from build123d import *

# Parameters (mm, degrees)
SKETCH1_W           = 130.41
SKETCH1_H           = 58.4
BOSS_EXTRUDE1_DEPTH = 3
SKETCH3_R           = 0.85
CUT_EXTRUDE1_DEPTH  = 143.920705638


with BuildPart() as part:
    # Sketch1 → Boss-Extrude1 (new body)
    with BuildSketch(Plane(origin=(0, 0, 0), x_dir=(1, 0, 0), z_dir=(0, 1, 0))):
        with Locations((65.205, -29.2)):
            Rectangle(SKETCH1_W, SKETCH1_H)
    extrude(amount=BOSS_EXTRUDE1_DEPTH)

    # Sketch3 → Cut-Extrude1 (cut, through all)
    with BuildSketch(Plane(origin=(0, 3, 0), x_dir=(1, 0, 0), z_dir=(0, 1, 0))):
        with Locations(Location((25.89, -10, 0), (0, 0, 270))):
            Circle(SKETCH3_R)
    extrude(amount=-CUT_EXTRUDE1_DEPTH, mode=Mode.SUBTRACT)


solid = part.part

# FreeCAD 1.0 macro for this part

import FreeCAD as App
import Part
import Sketcher
Q = App.Units.Quantity

doc = App.newDocument("Part")
params = doc.addObject("Spreadsheet::Sheet", "Params")
for row, (alias, value) in enumerate([
    ("sketch1_height", "58.4 mm"),
    ("sketch1_width", "130.41 mm"),
    ("pad1_length", "3 mm"),
    ("sketch2_diameter", "1.7 mm"),
], start=1):
    params.set(f"A{row}", alias)
    params.set(f"B{row}", "=" + value)
    params.setAlias(f"B{row}", alias)

body = doc.addObject("PartDesign::Body", "Body")

sketch1 = body.newObject("Sketcher::SketchObject", "Sketch")
sketch1.AttachmentSupport = (doc.getObject("XZ_Plane"), [""])
sketch1.MapMode = "FlatFace"
sketch1.addGeometry(Part.LineSegment(App.Vector(0, 0, 0), App.Vector(0, 58, 0)), False)
sketch1.addGeometry(Part.LineSegment(App.Vector(0, 58, 0), App.Vector(130, 58, 0)), False)
sketch1.addGeometry(Part.LineSegment(App.Vector(130, 58, 0), App.Vector(130, 0, 0)), False)
sketch1.addGeometry(Part.LineSegment(App.Vector(130, 0, 0), App.Vector(0, 0, 0)), False)
sketch1.addConstraint(Sketcher.Constraint("Coincident", 0, 2, 1, 1))
sketch1.addConstraint(Sketcher.Constraint("Coincident", 1, 2, 2, 1))
sketch1.addConstraint(Sketcher.Constraint("Coincident", 2, 2, 3, 1))
sketch1.addConstraint(Sketcher.Constraint("Coincident", 3, 2, 0, 1))
sketch1.addConstraint(Sketcher.Constraint("Vertical", 0))
sketch1.addConstraint(Sketcher.Constraint("Horizontal", 1))
sketch1.addConstraint(Sketcher.Constraint("Vertical", 2))
sketch1.addConstraint(Sketcher.Constraint("Horizontal", 3))
sketch1.addConstraint(Sketcher.Constraint("Coincident", 3, 2, -1, 1))
sketch1.addConstraint(Sketcher.Constraint("DistanceY", 0, 1, 0, 2, Q("58.4 mm")))
sketch1.addConstraint(Sketcher.Constraint("DistanceX", 1, 1, 1, 2, Q("130.41 mm")))
sketch1.setExpression("Constraints[9]", "Params.sketch1_height")
sketch1.setExpression("Constraints[10]", "Params.sketch1_width")
pad1 = body.newObject("PartDesign::Pad", "Pad")
pad1.Profile = sketch1
pad1.setExpression("Length", "Params.pad1_length")
pad1.Reversed = True

sketch2 = body.newObject("Sketcher::SketchObject", "Sketch001")
sketch2.AttachmentSupport = (doc.getObject("XZ_Plane"), [""])
sketch2.MapMode = "FlatFace"
sketch2.AttachmentOffset = App.Placement(App.Vector(0, 0, -3), App.Rotation())
sketch2.addGeometry(Part.Circle(App.Vector(25.9, 10, 0), App.Vector(0, 0, 1), 0.8), False)
sketch2.addConstraint(Sketcher.Constraint("Diameter", 0, Q("1.7 mm")))
sketch2.addConstraint(Sketcher.Constraint("DistanceY", -1, 1, 0, 3, Q("10 mm")))
sketch2.addConstraint(Sketcher.Constraint("DistanceX", -1, 1, 0, 3, Q("25.89 mm")))
sketch2.setExpression("Constraints[0]", "Params.sketch2_diameter")
pocket1 = body.newObject("PartDesign::Pocket", "Pocket")
pocket1.Profile = sketch2
pocket1.Type = "ThroughAll"
pocket1.Reversed = True

doc.recompute()
